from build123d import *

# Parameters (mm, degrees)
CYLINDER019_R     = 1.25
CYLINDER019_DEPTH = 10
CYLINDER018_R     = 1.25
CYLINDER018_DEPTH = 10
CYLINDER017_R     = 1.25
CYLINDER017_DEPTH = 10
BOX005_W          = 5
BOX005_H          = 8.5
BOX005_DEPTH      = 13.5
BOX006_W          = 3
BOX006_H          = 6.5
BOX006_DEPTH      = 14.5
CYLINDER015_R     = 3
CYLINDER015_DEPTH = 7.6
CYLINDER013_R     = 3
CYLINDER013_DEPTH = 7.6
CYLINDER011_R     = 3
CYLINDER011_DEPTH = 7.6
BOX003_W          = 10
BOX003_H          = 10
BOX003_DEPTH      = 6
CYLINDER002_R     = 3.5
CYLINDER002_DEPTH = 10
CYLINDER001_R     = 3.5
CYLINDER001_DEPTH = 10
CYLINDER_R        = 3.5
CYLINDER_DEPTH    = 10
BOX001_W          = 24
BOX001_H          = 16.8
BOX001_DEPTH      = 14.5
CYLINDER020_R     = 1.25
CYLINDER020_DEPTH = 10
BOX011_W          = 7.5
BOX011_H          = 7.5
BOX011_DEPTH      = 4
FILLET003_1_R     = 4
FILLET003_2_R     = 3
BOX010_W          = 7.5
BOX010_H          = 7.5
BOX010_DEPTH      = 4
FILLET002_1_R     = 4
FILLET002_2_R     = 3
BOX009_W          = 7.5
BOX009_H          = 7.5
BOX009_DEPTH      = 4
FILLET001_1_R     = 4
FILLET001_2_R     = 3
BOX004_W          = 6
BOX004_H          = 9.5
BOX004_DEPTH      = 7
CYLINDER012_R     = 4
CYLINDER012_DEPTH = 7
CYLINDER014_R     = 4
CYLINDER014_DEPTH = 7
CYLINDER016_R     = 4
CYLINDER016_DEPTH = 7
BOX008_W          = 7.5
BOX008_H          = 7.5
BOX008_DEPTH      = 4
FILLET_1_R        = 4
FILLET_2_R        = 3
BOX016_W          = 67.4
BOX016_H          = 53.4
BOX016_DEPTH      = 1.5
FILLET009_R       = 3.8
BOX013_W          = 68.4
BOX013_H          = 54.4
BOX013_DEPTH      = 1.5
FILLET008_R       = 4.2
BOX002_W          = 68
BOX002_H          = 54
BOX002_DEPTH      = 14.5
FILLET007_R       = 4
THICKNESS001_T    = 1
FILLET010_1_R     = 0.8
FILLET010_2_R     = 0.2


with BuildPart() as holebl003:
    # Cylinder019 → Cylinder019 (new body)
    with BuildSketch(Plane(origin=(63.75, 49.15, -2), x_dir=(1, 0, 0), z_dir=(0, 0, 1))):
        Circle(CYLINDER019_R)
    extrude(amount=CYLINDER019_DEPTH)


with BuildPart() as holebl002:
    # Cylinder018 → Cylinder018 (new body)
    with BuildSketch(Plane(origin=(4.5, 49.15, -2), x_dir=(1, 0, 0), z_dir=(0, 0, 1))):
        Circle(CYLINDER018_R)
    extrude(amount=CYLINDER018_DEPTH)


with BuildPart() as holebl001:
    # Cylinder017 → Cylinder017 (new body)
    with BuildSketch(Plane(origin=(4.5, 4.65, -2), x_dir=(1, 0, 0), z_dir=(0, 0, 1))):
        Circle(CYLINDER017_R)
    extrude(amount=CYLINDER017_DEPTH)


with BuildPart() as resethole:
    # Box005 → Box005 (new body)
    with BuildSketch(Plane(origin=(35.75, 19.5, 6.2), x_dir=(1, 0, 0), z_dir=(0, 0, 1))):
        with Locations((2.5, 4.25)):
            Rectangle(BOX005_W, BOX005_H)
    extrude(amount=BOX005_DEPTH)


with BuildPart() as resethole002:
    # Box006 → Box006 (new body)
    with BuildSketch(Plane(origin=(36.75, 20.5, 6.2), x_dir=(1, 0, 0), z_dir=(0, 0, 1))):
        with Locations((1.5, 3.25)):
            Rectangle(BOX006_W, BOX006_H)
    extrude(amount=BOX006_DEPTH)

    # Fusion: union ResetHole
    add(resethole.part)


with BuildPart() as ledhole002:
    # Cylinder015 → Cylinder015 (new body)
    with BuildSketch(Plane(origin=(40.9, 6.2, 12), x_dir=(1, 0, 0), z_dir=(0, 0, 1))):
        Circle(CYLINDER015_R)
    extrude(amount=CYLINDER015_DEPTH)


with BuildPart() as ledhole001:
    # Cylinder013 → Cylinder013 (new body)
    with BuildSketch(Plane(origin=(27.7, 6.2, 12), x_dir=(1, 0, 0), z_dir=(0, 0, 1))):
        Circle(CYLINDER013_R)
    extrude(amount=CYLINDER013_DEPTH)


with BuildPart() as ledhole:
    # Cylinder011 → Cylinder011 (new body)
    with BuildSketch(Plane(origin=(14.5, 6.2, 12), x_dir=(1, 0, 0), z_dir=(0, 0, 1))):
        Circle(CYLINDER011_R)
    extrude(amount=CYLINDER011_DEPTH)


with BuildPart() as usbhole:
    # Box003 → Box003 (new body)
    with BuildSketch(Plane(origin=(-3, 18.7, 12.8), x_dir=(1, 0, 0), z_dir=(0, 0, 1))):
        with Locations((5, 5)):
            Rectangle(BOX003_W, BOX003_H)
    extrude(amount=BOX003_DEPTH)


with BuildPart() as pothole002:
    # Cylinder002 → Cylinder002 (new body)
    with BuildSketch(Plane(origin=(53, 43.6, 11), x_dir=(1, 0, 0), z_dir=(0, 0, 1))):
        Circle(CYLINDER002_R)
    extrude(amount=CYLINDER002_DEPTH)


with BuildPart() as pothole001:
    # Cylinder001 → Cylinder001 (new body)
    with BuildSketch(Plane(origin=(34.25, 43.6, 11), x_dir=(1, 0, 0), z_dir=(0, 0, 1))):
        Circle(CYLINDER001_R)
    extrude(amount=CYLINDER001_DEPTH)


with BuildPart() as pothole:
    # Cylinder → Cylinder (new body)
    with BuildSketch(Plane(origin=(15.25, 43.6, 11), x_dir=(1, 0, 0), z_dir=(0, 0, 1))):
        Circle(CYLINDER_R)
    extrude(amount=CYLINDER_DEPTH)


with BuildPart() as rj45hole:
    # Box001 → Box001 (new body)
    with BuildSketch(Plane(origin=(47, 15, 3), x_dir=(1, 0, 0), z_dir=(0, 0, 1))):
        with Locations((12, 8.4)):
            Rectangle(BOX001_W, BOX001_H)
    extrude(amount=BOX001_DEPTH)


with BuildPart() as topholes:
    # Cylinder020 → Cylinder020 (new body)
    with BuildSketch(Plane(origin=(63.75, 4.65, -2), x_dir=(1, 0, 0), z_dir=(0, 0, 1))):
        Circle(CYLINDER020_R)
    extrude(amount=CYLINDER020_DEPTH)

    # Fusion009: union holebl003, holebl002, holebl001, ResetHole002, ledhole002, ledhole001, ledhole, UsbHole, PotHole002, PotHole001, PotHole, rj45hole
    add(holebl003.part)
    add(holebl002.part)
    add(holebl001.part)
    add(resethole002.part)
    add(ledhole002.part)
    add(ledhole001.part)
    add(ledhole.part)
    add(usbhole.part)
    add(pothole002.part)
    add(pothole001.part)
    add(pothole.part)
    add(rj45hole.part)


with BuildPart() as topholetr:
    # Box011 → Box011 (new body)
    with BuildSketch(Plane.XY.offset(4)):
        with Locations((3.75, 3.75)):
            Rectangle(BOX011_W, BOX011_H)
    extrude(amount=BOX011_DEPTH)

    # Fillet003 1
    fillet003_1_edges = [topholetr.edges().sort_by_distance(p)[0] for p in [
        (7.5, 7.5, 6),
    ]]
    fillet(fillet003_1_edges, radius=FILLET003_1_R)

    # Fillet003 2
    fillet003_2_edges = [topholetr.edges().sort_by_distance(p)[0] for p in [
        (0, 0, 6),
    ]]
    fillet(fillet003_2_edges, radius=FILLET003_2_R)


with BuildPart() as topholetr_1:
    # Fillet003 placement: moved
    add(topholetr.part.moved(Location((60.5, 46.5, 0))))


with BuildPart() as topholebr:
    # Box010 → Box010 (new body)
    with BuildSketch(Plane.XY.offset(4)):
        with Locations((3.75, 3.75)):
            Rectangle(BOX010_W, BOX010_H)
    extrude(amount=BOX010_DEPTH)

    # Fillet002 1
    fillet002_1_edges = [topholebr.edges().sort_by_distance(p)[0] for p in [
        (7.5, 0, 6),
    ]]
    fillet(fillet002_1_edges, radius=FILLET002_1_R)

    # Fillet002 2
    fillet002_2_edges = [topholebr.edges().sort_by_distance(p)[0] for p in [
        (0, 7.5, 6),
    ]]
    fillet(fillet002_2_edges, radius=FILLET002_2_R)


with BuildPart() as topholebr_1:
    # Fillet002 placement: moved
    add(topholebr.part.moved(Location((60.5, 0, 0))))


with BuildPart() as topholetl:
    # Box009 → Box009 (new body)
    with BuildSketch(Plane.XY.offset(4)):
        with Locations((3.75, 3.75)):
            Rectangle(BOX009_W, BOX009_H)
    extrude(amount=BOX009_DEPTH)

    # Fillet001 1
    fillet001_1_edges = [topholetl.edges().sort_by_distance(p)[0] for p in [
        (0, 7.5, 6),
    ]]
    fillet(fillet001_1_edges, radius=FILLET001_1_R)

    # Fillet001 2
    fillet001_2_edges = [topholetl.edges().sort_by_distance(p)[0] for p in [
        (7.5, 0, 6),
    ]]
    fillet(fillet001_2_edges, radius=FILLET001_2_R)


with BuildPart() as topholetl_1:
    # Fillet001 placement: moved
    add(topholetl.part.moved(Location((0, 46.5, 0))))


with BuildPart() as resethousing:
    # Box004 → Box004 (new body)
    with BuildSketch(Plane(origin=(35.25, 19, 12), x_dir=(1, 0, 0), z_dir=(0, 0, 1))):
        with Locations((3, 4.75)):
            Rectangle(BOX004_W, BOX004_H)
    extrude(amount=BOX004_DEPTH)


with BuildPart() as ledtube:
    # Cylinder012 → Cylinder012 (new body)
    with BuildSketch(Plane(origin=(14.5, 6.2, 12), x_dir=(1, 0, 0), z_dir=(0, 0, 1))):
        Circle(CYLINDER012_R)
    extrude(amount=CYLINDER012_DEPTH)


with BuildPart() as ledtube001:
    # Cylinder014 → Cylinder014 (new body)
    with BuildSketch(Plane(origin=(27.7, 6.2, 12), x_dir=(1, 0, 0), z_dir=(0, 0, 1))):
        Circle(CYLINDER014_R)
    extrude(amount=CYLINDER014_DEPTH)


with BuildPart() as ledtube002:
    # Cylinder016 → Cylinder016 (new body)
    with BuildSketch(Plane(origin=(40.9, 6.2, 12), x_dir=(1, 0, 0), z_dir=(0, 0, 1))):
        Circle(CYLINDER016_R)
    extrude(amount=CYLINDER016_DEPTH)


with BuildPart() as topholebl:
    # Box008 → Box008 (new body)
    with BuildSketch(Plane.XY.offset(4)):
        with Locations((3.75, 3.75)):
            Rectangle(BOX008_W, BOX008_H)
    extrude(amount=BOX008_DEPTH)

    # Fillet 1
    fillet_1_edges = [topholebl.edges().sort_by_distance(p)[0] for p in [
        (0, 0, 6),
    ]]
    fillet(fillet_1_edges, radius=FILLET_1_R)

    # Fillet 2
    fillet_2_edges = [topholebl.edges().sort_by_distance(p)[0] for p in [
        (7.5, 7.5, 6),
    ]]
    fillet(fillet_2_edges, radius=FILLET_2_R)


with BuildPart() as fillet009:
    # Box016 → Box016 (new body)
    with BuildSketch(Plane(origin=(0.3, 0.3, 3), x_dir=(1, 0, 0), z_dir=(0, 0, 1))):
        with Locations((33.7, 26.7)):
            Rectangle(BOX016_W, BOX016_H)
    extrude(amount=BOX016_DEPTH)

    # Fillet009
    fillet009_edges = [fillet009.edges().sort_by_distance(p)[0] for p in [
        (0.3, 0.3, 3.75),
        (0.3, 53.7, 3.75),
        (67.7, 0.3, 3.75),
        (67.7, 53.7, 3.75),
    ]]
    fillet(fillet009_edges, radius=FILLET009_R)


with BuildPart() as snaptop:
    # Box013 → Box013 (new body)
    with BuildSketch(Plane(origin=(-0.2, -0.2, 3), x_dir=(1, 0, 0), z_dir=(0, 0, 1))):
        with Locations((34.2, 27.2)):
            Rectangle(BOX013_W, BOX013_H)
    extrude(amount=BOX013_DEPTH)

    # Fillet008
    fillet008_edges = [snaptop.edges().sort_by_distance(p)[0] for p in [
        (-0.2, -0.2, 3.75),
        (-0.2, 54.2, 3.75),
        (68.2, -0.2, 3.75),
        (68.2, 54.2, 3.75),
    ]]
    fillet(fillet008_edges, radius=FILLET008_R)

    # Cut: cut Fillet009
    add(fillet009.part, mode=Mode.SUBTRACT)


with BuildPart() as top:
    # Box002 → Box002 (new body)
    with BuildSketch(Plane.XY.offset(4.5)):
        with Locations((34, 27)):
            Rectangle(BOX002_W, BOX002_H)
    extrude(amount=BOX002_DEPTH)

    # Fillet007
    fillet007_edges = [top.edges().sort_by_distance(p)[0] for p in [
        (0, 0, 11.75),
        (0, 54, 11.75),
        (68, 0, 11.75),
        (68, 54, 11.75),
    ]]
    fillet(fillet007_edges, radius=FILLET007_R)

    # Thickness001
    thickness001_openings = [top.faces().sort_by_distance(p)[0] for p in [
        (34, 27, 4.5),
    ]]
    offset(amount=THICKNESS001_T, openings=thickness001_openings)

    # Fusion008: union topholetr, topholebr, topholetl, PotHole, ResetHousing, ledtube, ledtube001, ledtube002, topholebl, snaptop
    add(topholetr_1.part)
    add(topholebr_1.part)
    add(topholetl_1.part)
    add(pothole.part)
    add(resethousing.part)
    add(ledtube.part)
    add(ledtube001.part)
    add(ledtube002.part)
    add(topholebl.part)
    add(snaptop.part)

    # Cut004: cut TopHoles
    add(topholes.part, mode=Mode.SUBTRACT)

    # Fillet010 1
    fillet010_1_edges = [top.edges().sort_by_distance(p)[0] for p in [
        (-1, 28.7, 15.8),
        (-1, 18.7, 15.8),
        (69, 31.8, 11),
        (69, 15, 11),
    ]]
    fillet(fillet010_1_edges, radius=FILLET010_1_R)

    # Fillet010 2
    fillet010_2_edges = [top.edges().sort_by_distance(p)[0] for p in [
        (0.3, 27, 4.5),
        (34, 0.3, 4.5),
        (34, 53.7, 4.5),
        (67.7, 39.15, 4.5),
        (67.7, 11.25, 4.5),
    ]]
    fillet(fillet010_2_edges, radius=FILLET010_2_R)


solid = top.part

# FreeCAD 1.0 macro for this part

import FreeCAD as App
import Part
import Sketcher
Q = App.Units.Quantity


def edges_at(feature, points):
    """Names of the edges that pass closest to the given points."""
    edges = feature.Shape.Edges
    near = lambda p: min(range(len(edges)), key=lambda i: edges[i].distToShape(Part.Vertex(*p))[0])
    return sorted({f"Edge{near(p) + 1}" for p in points})


def faces_at(feature, points):
    """Names of the faces that lie closest to the given points."""
    faces = feature.Shape.Faces
    near = lambda p: min(range(len(faces)), key=lambda i: faces[i].distToShape(Part.Vertex(*p))[0])
    return sorted({f"Face{near(p) + 1}" for p in points})


def add_polygon(sketch, points):
    """Adds a closed chain of lines whose ends are joined by coincident constraints."""
    first, n = sketch.GeometryCount, len(points)
    for a, b in zip(points, points[1:] + points[:1]):
        sketch.addGeometry(Part.LineSegment(App.Vector(*a, 0), App.Vector(*b, 0)), False)
    for i in range(n):
        sketch.addConstraint(Sketcher.Constraint("Coincident", first + i, 2, first + (i + 1) % n, 1))

doc = App.newDocument("Part")
body = doc.addObject("PartDesign::Body", "Body")

sketch1 = body.newObject("Sketcher::SketchObject", "Sketch")
sketch1.AttachmentSupport = (doc.getObject("XY_Plane"), [""])
sketch1.MapMode = "FlatFace"
sketch1.AttachmentOffset = App.Placement(App.Vector(0, 0, -2), App.Rotation())
sketch1.addGeometry(Part.Circle(App.Vector(63.8, 49.1, 0), App.Vector(0, 0, 1), 1.2), False)
sketch1.addConstraint([
    Sketcher.Constraint("Diameter", 0, Q("2.5 mm")),
    Sketcher.Constraint("DistanceX", -1, 1, 0, 3, Q("63.75 mm")),
    Sketcher.Constraint("DistanceY", -1, 1, 0, 3, Q("49.15 mm")),
])
pad1 = body.newObject("PartDesign::Pad", "Pad")
pad1.Profile = sketch1
pad1.Length = 10
body2 = doc.addObject("PartDesign::Body", "Body001")

sketch2 = body2.newObject("Sketcher::SketchObject", "Sketch001")
sketch2.AttachmentSupport = (doc.getObject("XY_Plane001"), [""])
sketch2.MapMode = "FlatFace"
sketch2.AttachmentOffset = App.Placement(App.Vector(0, 0, -2), App.Rotation())
sketch2.addGeometry(Part.Circle(App.Vector(4.5, 49.1, 0), App.Vector(0, 0, 1), 1.2), False)
sketch2.addConstraint([
    Sketcher.Constraint("Diameter", 0, Q("2.5 mm")),
    Sketcher.Constraint("DistanceX", -1, 1, 0, 3, Q("4.5 mm")),
    Sketcher.Constraint("DistanceY", -1, 1, 0, 3, Q("49.15 mm")),
])
pad2 = body2.newObject("PartDesign::Pad", "Pad001")
pad2.Profile = sketch2
pad2.Length = 10
body3 = doc.addObject("PartDesign::Body", "Body002")

sketch3 = body3.newObject("Sketcher::SketchObject", "Sketch002")
sketch3.AttachmentSupport = (doc.getObject("XY_Plane002"), [""])
sketch3.MapMode = "FlatFace"
sketch3.AttachmentOffset = App.Placement(App.Vector(0, 0, -2), App.Rotation())
sketch3.addGeometry(Part.Circle(App.Vector(4.5, 4.7, 0), App.Vector(0, 0, 1), 1.2), False)
sketch3.addConstraint([
    Sketcher.Constraint("Diameter", 0, Q("2.5 mm")),
    Sketcher.Constraint("DistanceX", -1, 1, 0, 3, Q("4.5 mm")),
    Sketcher.Constraint("DistanceY", -1, 1, 0, 3, Q("4.65 mm")),
])
pad3 = body3.newObject("PartDesign::Pad", "Pad002")
pad3.Profile = sketch3
pad3.Length = 10
body4 = doc.addObject("PartDesign::Body", "Body003")

sketch4 = body4.newObject("Sketcher::SketchObject", "Sketch003")
sketch4.AttachmentSupport = (doc.getObject("XY_Plane003"), [""])
sketch4.MapMode = "FlatFace"
sketch4.AttachmentOffset = App.Placement(App.Vector(0, 0, 6.2), App.Rotation())
add_polygon(sketch4, [(36, 28), (36, 20), (41, 20), (41, 28)])
sketch4.addConstraint([
    Sketcher.Constraint("Vertical", 0),
    Sketcher.Constraint("Horizontal", 1),
    Sketcher.Constraint("Vertical", 2),
    Sketcher.Constraint("Horizontal", 3),
    Sketcher.Constraint("DistanceX", 1, 1, 1, 2, Q("5 mm")),
    Sketcher.Constraint("DistanceY", 0, 2, 0, 1, Q("8.5 mm")),
    Sketcher.Constraint("DistanceY", -1, 1, 2, 2, Q("28 mm")),
    Sketcher.Constraint("DistanceX", -1, 1, 0, 2, Q("35.75 mm")),
])
pad4 = body4.newObject("PartDesign::Pad", "Pad003")
pad4.Profile = sketch4
pad4.Length = 13.5
body5 = doc.addObject("PartDesign::Body", "Body004")

sketch5 = body5.newObject("Sketcher::SketchObject", "Sketch004")
sketch5.AttachmentSupport = (doc.getObject("XY_Plane004"), [""])
sketch5.MapMode = "FlatFace"
sketch5.AttachmentOffset = App.Placement(App.Vector(0, 0, 6.2), App.Rotation())
add_polygon(sketch5, [(36.8, 27), (36.8, 20.5), (39.8, 20.5), (39.8, 27)])
sketch5.addConstraint([
    Sketcher.Constraint("Vertical", 0),
    Sketcher.Constraint("Horizontal", 1),
    Sketcher.Constraint("Vertical", 2),
    Sketcher.Constraint("Horizontal", 3),
    Sketcher.Constraint("DistanceX", 1, 1, 1, 2, Q("3 mm")),
    Sketcher.Constraint("DistanceY", 0, 2, 0, 1, Q("6.5 mm")),
    Sketcher.Constraint("DistanceY", -1, 1, 2, 2, Q("27 mm")),
    Sketcher.Constraint("DistanceX", -1, 1, 0, 2, Q("36.75 mm")),
])
pad5 = body5.newObject("PartDesign::Pad", "Pad004")
pad5.Profile = sketch5
pad5.Length = 14.5
doc.recompute()

boolean = body5.newObject("PartDesign::Boolean", "Boolean")
boolean.Type = "Fuse"
boolean.addObjects([body4])
body6 = doc.addObject("PartDesign::Body", "Body005")

sketch6 = body6.newObject("Sketcher::SketchObject", "Sketch005")
sketch6.AttachmentSupport = (doc.getObject("XY_Plane005"), [""])
sketch6.MapMode = "FlatFace"
sketch6.AttachmentOffset = App.Placement(App.Vector(0, 0, 12), App.Rotation())
sketch6.addGeometry(Part.Circle(App.Vector(40.9, 6.2, 0), App.Vector(0, 0, 1), 3), False)
sketch6.addConstraint([
    Sketcher.Constraint("Diameter", 0, Q("6 mm")),
    Sketcher.Constraint("DistanceX", -1, 1, 0, 3, Q("40.9 mm")),
    Sketcher.Constraint("DistanceY", -1, 1, 0, 3, Q("6.2 mm")),
])
pad6 = body6.newObject("PartDesign::Pad", "Pad005")
pad6.Profile = sketch6
pad6.Length = 7.6
body7 = doc.addObject("PartDesign::Body", "Body006")

sketch7 = body7.newObject("Sketcher::SketchObject", "Sketch006")
sketch7.AttachmentSupport = (doc.getObject("XY_Plane006"), [""])
sketch7.MapMode = "FlatFace"
sketch7.AttachmentOffset = App.Placement(App.Vector(0, 0, 12), App.Rotation())
sketch7.addGeometry(Part.Circle(App.Vector(27.7, 6.2, 0), App.Vector(0, 0, 1), 3), False)
sketch7.addConstraint([
    Sketcher.Constraint("Diameter", 0, Q("6 mm")),
    Sketcher.Constraint("DistanceX", -1, 1, 0, 3, Q("27.7 mm")),
    Sketcher.Constraint("DistanceY", -1, 1, 0, 3, Q("6.2 mm")),
])
pad7 = body7.newObject("PartDesign::Pad", "Pad006")
pad7.Profile = sketch7
pad7.Length = 7.6
body8 = doc.addObject("PartDesign::Body", "Body007")

sketch8 = body8.newObject("Sketcher::SketchObject", "Sketch007")
sketch8.AttachmentSupport = (doc.getObject("XY_Plane007"), [""])
sketch8.MapMode = "FlatFace"
sketch8.AttachmentOffset = App.Placement(App.Vector(0, 0, 12), App.Rotation())
sketch8.addGeometry(Part.Circle(App.Vector(14.5, 6.2, 0), App.Vector(0, 0, 1), 3), False)
sketch8.addConstraint([
    Sketcher.Constraint("Diameter", 0, Q("6 mm")),
    Sketcher.Constraint("DistanceX", -1, 1, 0, 3, Q("14.5 mm")),
    Sketcher.Constraint("DistanceY", -1, 1, 0, 3, Q("6.2 mm")),
])
pad8 = body8.newObject("PartDesign::Pad", "Pad007")
pad8.Profile = sketch8
pad8.Length = 7.6
body9 = doc.addObject("PartDesign::Body", "Body008")

sketch9 = body9.newObject("Sketcher::SketchObject", "Sketch008")
sketch9.AttachmentSupport = (doc.getObject("XY_Plane008"), [""])
sketch9.MapMode = "FlatFace"
sketch9.AttachmentOffset = App.Placement(App.Vector(0, 0, 12.8), App.Rotation())
add_polygon(sketch9, [(-3, 29), (-3, 19), (7, 19), (7, 29)])
sketch9.addConstraint([
    Sketcher.Constraint("Vertical", 0),
    Sketcher.Constraint("Horizontal", 1),
    Sketcher.Constraint("Vertical", 2),
    Sketcher.Constraint("Horizontal", 3),
    Sketcher.Constraint("Equal", 3, 0),
    Sketcher.Constraint("DistanceX", 1, 1, 1, 2, Q("10 mm")),
    Sketcher.Constraint("DistanceX", 0, 2, -1, 1, Q("3 mm")),
    Sketcher.Constraint("DistanceY", -1, 1, 0, 2, Q("18.7 mm")),
])
pad9 = body9.newObject("PartDesign::Pad", "Pad008")
pad9.Profile = sketch9
pad9.Length = 6
body10 = doc.addObject("PartDesign::Body", "Body009")

sketch10 = body10.newObject("Sketcher::SketchObject", "Sketch009")
sketch10.AttachmentSupport = (doc.getObject("XY_Plane009"), [""])
sketch10.MapMode = "FlatFace"
sketch10.AttachmentOffset = App.Placement(App.Vector(0, 0, 11), App.Rotation())
sketch10.addGeometry(Part.Circle(App.Vector(53, 43.6, 0), App.Vector(0, 0, 1), 3.5), False)
sketch10.addConstraint([
    Sketcher.Constraint("Diameter", 0, Q("7 mm")),
    Sketcher.Constraint("DistanceX", -1, 1, 0, 3, Q("53 mm")),
    Sketcher.Constraint("DistanceY", -1, 1, 0, 3, Q("43.6 mm")),
])
pad10 = body10.newObject("PartDesign::Pad", "Pad009")
pad10.Profile = sketch10
pad10.Length = 10
body11 = doc.addObject("PartDesign::Body", "Body010")

sketch11 = body11.newObject("Sketcher::SketchObject", "Sketch010")
sketch11.AttachmentSupport = (doc.getObject("XY_Plane010"), [""])
sketch11.MapMode = "FlatFace"
sketch11.AttachmentOffset = App.Placement(App.Vector(0, 0, 11), App.Rotation())
sketch11.addGeometry(Part.Circle(App.Vector(34.2, 43.6, 0), App.Vector(0, 0, 1), 3.5), False)
sketch11.addConstraint([
    Sketcher.Constraint("Diameter", 0, Q("7 mm")),
    Sketcher.Constraint("DistanceY", -1, 1, 0, 3, Q("43.6 mm")),
    Sketcher.Constraint("DistanceX", -1, 1, 0, 3, Q("34.25 mm")),
])
pad11 = body11.newObject("PartDesign::Pad", "Pad010")
pad11.Profile = sketch11
pad11.Length = 10
body12 = doc.addObject("PartDesign::Body", "Body011")

sketch12 = body12.newObject("Sketcher::SketchObject", "Sketch011")
sketch12.AttachmentSupport = (doc.getObject("XY_Plane011"), [""])
sketch12.MapMode = "FlatFace"
sketch12.AttachmentOffset = App.Placement(App.Vector(0, 0, 11), App.Rotation())
sketch12.addGeometry(Part.Circle(App.Vector(15.2, 43.6, 0), App.Vector(0, 0, 1), 3.5), False)
sketch12.addConstraint([
    Sketcher.Constraint("Diameter", 0, Q("7 mm")),
    Sketcher.Constraint("DistanceY", -1, 1, 0, 3, Q("43.6 mm")),
    Sketcher.Constraint("DistanceX", -1, 1, 0, 3, Q("15.25 mm")),
])
pad12 = body12.newObject("PartDesign::Pad", "Pad011")
pad12.Profile = sketch12
pad12.Length = 10
body13 = doc.addObject("PartDesign::Body", "Body012")

sketch13 = body13.newObject("Sketcher::SketchObject", "Sketch012")
sketch13.AttachmentSupport = (doc.getObject("XY_Plane012"), [""])
sketch13.MapMode = "FlatFace"
sketch13.AttachmentOffset = App.Placement(App.Vector(0, 0, 3), App.Rotation())
add_polygon(sketch13, [(47, 32), (47, 15), (71, 15), (71, 32)])
sketch13.addConstraint([
    Sketcher.Constraint("Vertical", 0),
    Sketcher.Constraint("Horizontal", 1),
    Sketcher.Constraint("Vertical", 2),
    Sketcher.Constraint("Horizontal", 3),
    Sketcher.Constraint("DistanceX", 1, 1, 1, 2, Q("24 mm")),
    Sketcher.Constraint("DistanceY", 0, 2, 0, 1, Q("16.8 mm")),
    Sketcher.Constraint("DistanceX", -1, 1, 0, 2, Q("47 mm")),
    Sketcher.Constraint("DistanceY", -1, 1, 0, 2, Q("15 mm")),
])
pad13 = body13.newObject("PartDesign::Pad", "Pad012")
pad13.Profile = sketch13
pad13.Length = 14.5
body14 = doc.addObject("PartDesign::Body", "Body013")
body14.AllowCompound = True

sketch14 = body14.newObject("Sketcher::SketchObject", "Sketch013")
sketch14.AttachmentSupport = (doc.getObject("XY_Plane013"), [""])
sketch14.MapMode = "FlatFace"
sketch14.AttachmentOffset = App.Placement(App.Vector(0, 0, -2), App.Rotation())
sketch14.addGeometry(Part.Circle(App.Vector(63.8, 4.7, 0), App.Vector(0, 0, 1), 1.2), False)
sketch14.addConstraint([
    Sketcher.Constraint("Diameter", 0, Q("2.5 mm")),
    Sketcher.Constraint("DistanceX", -1, 1, 0, 3, Q("63.75 mm")),
    Sketcher.Constraint("DistanceY", -1, 1, 0, 3, Q("4.65 mm")),
])
pad14 = body14.newObject("PartDesign::Pad", "Pad013")
pad14.Profile = sketch14
pad14.Length = 10
doc.recompute()

boolean2 = body14.newObject("PartDesign::Boolean", "Boolean001")
boolean2.Type = "Fuse"
boolean2.addObjects([body])
doc.recompute()

boolean3 = body14.newObject("PartDesign::Boolean", "Boolean002")
boolean3.Type = "Fuse"
boolean3.addObjects([body2])
doc.recompute()

boolean4 = body14.newObject("PartDesign::Boolean", "Boolean003")
boolean4.Type = "Fuse"
boolean4.addObjects([body3])
doc.recompute()

boolean5 = body14.newObject("PartDesign::Boolean", "Boolean004")
boolean5.Type = "Fuse"
boolean5.addObjects([body5])
doc.recompute()

boolean6 = body14.newObject("PartDesign::Boolean", "Boolean005")
boolean6.Type = "Fuse"
boolean6.addObjects([body6])
doc.recompute()

boolean7 = body14.newObject("PartDesign::Boolean", "Boolean006")
boolean7.Type = "Fuse"
boolean7.addObjects([body7])
doc.recompute()

boolean8 = body14.newObject("PartDesign::Boolean", "Boolean007")
boolean8.Type = "Fuse"
boolean8.addObjects([body8])
doc.recompute()

boolean9 = body14.newObject("PartDesign::Boolean", "Boolean008")
boolean9.Type = "Fuse"
boolean9.addObjects([body9])
doc.recompute()

boolean10 = body14.newObject("PartDesign::Boolean", "Boolean009")
boolean10.Type = "Fuse"
boolean10.addObjects([body10])
doc.recompute()

boolean11 = body14.newObject("PartDesign::Boolean", "Boolean010")
boolean11.Type = "Fuse"
boolean11.addObjects([body11])
doc.recompute()

body15 = doc.addObject("PartDesign::Body", "Body014")
body15.BaseFeature = body12
boolean12 = body14.newObject("PartDesign::Boolean", "Boolean011")
boolean12.Type = "Fuse"
boolean12.addObjects([body15])
doc.recompute()

boolean13 = body14.newObject("PartDesign::Boolean", "Boolean012")
boolean13.Type = "Fuse"
boolean13.addObjects([body13])
body16 = doc.addObject("PartDesign::Body", "Body015")

sketch15 = body16.newObject("Sketcher::SketchObject", "Sketch014")
sketch15.AttachmentSupport = (doc.getObject("XY_Plane015"), [""])
sketch15.MapMode = "FlatFace"
sketch15.AttachmentOffset = App.Placement(App.Vector(0, 0, 4), App.Rotation())
add_polygon(sketch15, [(0, 8), (0, 0), (8, 0), (8, 8)])
sketch15.addConstraint([
    Sketcher.Constraint("Vertical", 0),
    Sketcher.Constraint("Horizontal", 1),
    Sketcher.Constraint("Vertical", 2),
    Sketcher.Constraint("Horizontal", 3),
    Sketcher.Constraint("Coincident", 0, 2, -1, 1),
    Sketcher.Constraint("Equal", 3, 0),
    Sketcher.Constraint("DistanceX", 1, 1, 1, 2, Q("7.5 mm")),
])
pad15 = body16.newObject("PartDesign::Pad", "Pad014")
pad15.Profile = sketch15
pad15.Length = 4
doc.recompute()

fillet = body16.newObject("PartDesign::Fillet", "Fillet")
fillet.Base = (pad15, edges_at(pad15, [(7.5, 7.5, 6)]))
fillet.Radius = 4
doc.recompute()

fillet2 = body16.newObject("PartDesign::Fillet", "Fillet001")
fillet2.Base = (fillet, edges_at(fillet, [(0, 0, 6)]))
fillet2.Radius = 3
body17 = doc.addObject("PartDesign::Body", "Body016")
doc.recompute()

body16.Placement = App.Placement(App.Vector(60.5, 46.5, 0), App.Rotation(App.Vector(0, 0, 1), 0))
boolean14 = body17.newObject("PartDesign::Boolean", "Boolean013")
boolean14.Type = "Fuse"
boolean14.addObjects([body16])
body18 = doc.addObject("PartDesign::Body", "Body017")

sketch16 = body18.newObject("Sketcher::SketchObject", "Sketch015")
sketch16.AttachmentSupport = (doc.getObject("XY_Plane017"), [""])
sketch16.MapMode = "FlatFace"
sketch16.AttachmentOffset = App.Placement(App.Vector(0, 0, 4), App.Rotation())
add_polygon(sketch16, [(0, 8), (0, 0), (8, 0), (8, 8)])
sketch16.addConstraint([
    Sketcher.Constraint("Vertical", 0),
    Sketcher.Constraint("Horizontal", 1),
    Sketcher.Constraint("Vertical", 2),
    Sketcher.Constraint("Horizontal", 3),
    Sketcher.Constraint("Coincident", 0, 2, -1, 1),
    Sketcher.Constraint("Equal", 3, 0),
    Sketcher.Constraint("DistanceX", 1, 1, 1, 2, Q("7.5 mm")),
])
pad16 = body18.newObject("PartDesign::Pad", "Pad015")
pad16.Profile = sketch16
pad16.Length = 4
doc.recompute()

fillet3 = body18.newObject("PartDesign::Fillet", "Fillet002")
fillet3.Base = (pad16, edges_at(pad16, [(7.5, 0, 6)]))
fillet3.Radius = 4
doc.recompute()

fillet4 = body18.newObject("PartDesign::Fillet", "Fillet003")
fillet4.Base = (fillet3, edges_at(fillet3, [(0, 7.5, 6)]))
fillet4.Radius = 3
body19 = doc.addObject("PartDesign::Body", "Body018")
doc.recompute()

body18.Placement = App.Placement(App.Vector(60.5, 0, 0), App.Rotation(App.Vector(0, 0, 1), 0))
boolean15 = body19.newObject("PartDesign::Boolean", "Boolean014")
boolean15.Type = "Fuse"
boolean15.addObjects([body18])
body20 = doc.addObject("PartDesign::Body", "Body019")

sketch17 = body20.newObject("Sketcher::SketchObject", "Sketch016")
sketch17.AttachmentSupport = (doc.getObject("XY_Plane019"), [""])
sketch17.MapMode = "FlatFace"
sketch17.AttachmentOffset = App.Placement(App.Vector(0, 0, 4), App.Rotation())
add_polygon(sketch17, [(0, 8), (0, 0), (8, 0), (8, 8)])
sketch17.addConstraint([
    Sketcher.Constraint("Vertical", 0),
    Sketcher.Constraint("Horizontal", 1),
    Sketcher.Constraint("Vertical", 2),
    Sketcher.Constraint("Horizontal", 3),
    Sketcher.Constraint("Coincident", 0, 2, -1, 1),
    Sketcher.Constraint("Equal", 3, 0),
    Sketcher.Constraint("DistanceX", 1, 1, 1, 2, Q("7.5 mm")),
])
pad17 = body20.newObject("PartDesign::Pad", "Pad016")
pad17.Profile = sketch17
pad17.Length = 4
doc.recompute()

fillet5 = body20.newObject("PartDesign::Fillet", "Fillet004")
fillet5.Base = (pad17, edges_at(pad17, [(0, 7.5, 6)]))
fillet5.Radius = 4
doc.recompute()

fillet6 = body20.newObject("PartDesign::Fillet", "Fillet005")
fillet6.Base = (fillet5, edges_at(fillet5, [(7.5, 0, 6)]))
fillet6.Radius = 3
body21 = doc.addObject("PartDesign::Body", "Body020")
doc.recompute()

body20.Placement = App.Placement(App.Vector(0, 46.5, 0), App.Rotation(App.Vector(0, 0, 1), 0))
boolean16 = body21.newObject("PartDesign::Boolean", "Boolean015")
boolean16.Type = "Fuse"
boolean16.addObjects([body20])
body22 = doc.addObject("PartDesign::Body", "Body021")

sketch18 = body22.newObject("Sketcher::SketchObject", "Sketch017")
sketch18.AttachmentSupport = (doc.getObject("XY_Plane021"), [""])
sketch18.MapMode = "FlatFace"
sketch18.AttachmentOffset = App.Placement(App.Vector(0, 0, 12), App.Rotation())
add_polygon(sketch18, [(35, 28), (35, 19), (41, 19), (41, 28)])
sketch18.addConstraint([
    Sketcher.Constraint("Vertical", 0),
    Sketcher.Constraint("Horizontal", 1),
    Sketcher.Constraint("Vertical", 2),
    Sketcher.Constraint("Horizontal", 3),
    Sketcher.Constraint("DistanceX", 1, 1, 1, 2, Q("6 mm")),
    Sketcher.Constraint("DistanceY", 0, 2, 0, 1, Q("9.5 mm")),
    Sketcher.Constraint("DistanceY", -1, 1, 0, 2, Q("19 mm")),
    Sketcher.Constraint("DistanceX", -1, 1, 0, 2, Q("35.25 mm")),
])
pad18 = body22.newObject("PartDesign::Pad", "Pad017")
pad18.Profile = sketch18
pad18.Length = 7
body23 = doc.addObject("PartDesign::Body", "Body022")

sketch19 = body23.newObject("Sketcher::SketchObject", "Sketch018")
sketch19.AttachmentSupport = (doc.getObject("XY_Plane022"), [""])
sketch19.MapMode = "FlatFace"
sketch19.AttachmentOffset = App.Placement(App.Vector(0, 0, 12), App.Rotation())
sketch19.addGeometry(Part.Circle(App.Vector(14.5, 6.2, 0), App.Vector(0, 0, 1), 4), False)
sketch19.addConstraint([
    Sketcher.Constraint("Diameter", 0, Q("8 mm")),
    Sketcher.Constraint("DistanceX", -1, 1, 0, 3, Q("14.5 mm")),
    Sketcher.Constraint("DistanceY", -1, 1, 0, 3, Q("6.2 mm")),
])
pad19 = body23.newObject("PartDesign::Pad", "Pad018")
pad19.Profile = sketch19
pad19.Length = 7
body24 = doc.addObject("PartDesign::Body", "Body023")

sketch20 = body24.newObject("Sketcher::SketchObject", "Sketch019")
sketch20.AttachmentSupport = (doc.getObject("XY_Plane023"), [""])
sketch20.MapMode = "FlatFace"
sketch20.AttachmentOffset = App.Placement(App.Vector(0, 0, 12), App.Rotation())
sketch20.addGeometry(Part.Circle(App.Vector(27.7, 6.2, 0), App.Vector(0, 0, 1), 4), False)
sketch20.addConstraint([
    Sketcher.Constraint("Diameter", 0, Q("8 mm")),
    Sketcher.Constraint("DistanceX", -1, 1, 0, 3, Q("27.7 mm")),
    Sketcher.Constraint("DistanceY", -1, 1, 0, 3, Q("6.2 mm")),
])
pad20 = body24.newObject("PartDesign::Pad", "Pad019")
pad20.Profile = sketch20
pad20.Length = 7
body25 = doc.addObject("PartDesign::Body", "Body024")

sketch21 = body25.newObject("Sketcher::SketchObject", "Sketch020")
sketch21.AttachmentSupport = (doc.getObject("XY_Plane024"), [""])
sketch21.MapMode = "FlatFace"
sketch21.AttachmentOffset = App.Placement(App.Vector(0, 0, 12), App.Rotation())
sketch21.addGeometry(Part.Circle(App.Vector(40.9, 6.2, 0), App.Vector(0, 0, 1), 4), False)
sketch21.addConstraint([
    Sketcher.Constraint("Diameter", 0, Q("8 mm")),
    Sketcher.Constraint("DistanceX", -1, 1, 0, 3, Q("40.9 mm")),
    Sketcher.Constraint("DistanceY", -1, 1, 0, 3, Q("6.2 mm")),
])
pad21 = body25.newObject("PartDesign::Pad", "Pad020")
pad21.Profile = sketch21
pad21.Length = 7
body26 = doc.addObject("PartDesign::Body", "Body025")

sketch22 = body26.newObject("Sketcher::SketchObject", "Sketch021")
sketch22.AttachmentSupport = (doc.getObject("XY_Plane025"), [""])
sketch22.MapMode = "FlatFace"
sketch22.AttachmentOffset = App.Placement(App.Vector(0, 0, 4), App.Rotation())
add_polygon(sketch22, [(0, 8), (0, 0), (8, 0), (8, 8)])
sketch22.addConstraint([
    Sketcher.Constraint("Vertical", 0),
    Sketcher.Constraint("Horizontal", 1),
    Sketcher.Constraint("Vertical", 2),
    Sketcher.Constraint("Horizontal", 3),
    Sketcher.Constraint("Coincident", 0, 2, -1, 1),
    Sketcher.Constraint("Equal", 3, 0),
    Sketcher.Constraint("DistanceX", 1, 1, 1, 2, Q("7.5 mm")),
])
pad22 = body26.newObject("PartDesign::Pad", "Pad021")
pad22.Profile = sketch22
pad22.Length = 4
doc.recompute()

fillet7 = body26.newObject("PartDesign::Fillet", "Fillet006")
fillet7.Base = (pad22, edges_at(pad22, [(0, 0, 6)]))
fillet7.Radius = 4
doc.recompute()

fillet8 = body26.newObject("PartDesign::Fillet", "Fillet007")
fillet8.Base = (fillet7, edges_at(fillet7, [(7.5, 7.5, 6)]))
fillet8.Radius = 3
body27 = doc.addObject("PartDesign::Body", "Body026")

sketch23 = body27.newObject("Sketcher::SketchObject", "Sketch022")
sketch23.AttachmentSupport = (doc.getObject("XY_Plane026"), [""])
sketch23.MapMode = "FlatFace"
sketch23.AttachmentOffset = App.Placement(App.Vector(0, 0, 3), App.Rotation())
add_polygon(sketch23, [(0, 54), (0, 0), (68, 0), (68, 54)])
sketch23.addConstraint([
    Sketcher.Constraint("Vertical", 0),
    Sketcher.Constraint("Horizontal", 1),
    Sketcher.Constraint("Vertical", 2),
    Sketcher.Constraint("Horizontal", 3),
    Sketcher.Constraint("DistanceX", 1, 1, 1, 2, Q("67.4 mm")),
    Sketcher.Constraint("DistanceY", 0, 2, 0, 1, Q("53.4 mm")),
    Sketcher.Constraint("DistanceX", -1, 1, 0, 2, Q("0.3 mm")),
    Sketcher.Constraint("DistanceY", -1, 1, 0, 2, Q("0.3 mm")),
])
pad23 = body27.newObject("PartDesign::Pad", "Pad022")
pad23.Profile = sketch23
pad23.Length = 1.5
doc.recompute()

fillet9 = body27.newObject("PartDesign::Fillet", "Fillet008")
fillet9.Base = (pad23, edges_at(pad23, [
    (0.3, 0.3, 3.75),
    (0.3, 53.7, 3.75),
    (67.7, 0.3, 3.75),
    (67.7, 53.7, 3.75),
]))
fillet9.Radius = 3.8
body28 = doc.addObject("PartDesign::Body", "Body027")

sketch24 = body28.newObject("Sketcher::SketchObject", "Sketch023")
sketch24.AttachmentSupport = (doc.getObject("XY_Plane027"), [""])
sketch24.MapMode = "FlatFace"
sketch24.AttachmentOffset = App.Placement(App.Vector(0, 0, 3), App.Rotation())
add_polygon(sketch24, [(0, 54), (0, 0), (68, 0), (68, 54)])
sketch24.addConstraint([
    Sketcher.Constraint("Vertical", 0),
    Sketcher.Constraint("Horizontal", 1),
    Sketcher.Constraint("Vertical", 2),
    Sketcher.Constraint("Horizontal", 3),
    Sketcher.Constraint("DistanceX", 1, 1, 1, 2, Q("68.4 mm")),
    Sketcher.Constraint("DistanceY", 0, 2, 0, 1, Q("54.4 mm")),
    Sketcher.Constraint("DistanceX", 0, 2, -1, 1, Q("0.2 mm")),
    Sketcher.Constraint("DistanceY", 0, 2, -1, 1, Q("0.2 mm")),
])
pad24 = body28.newObject("PartDesign::Pad", "Pad023")
pad24.Profile = sketch24
pad24.Length = 1.5
doc.recompute()

fillet10 = body28.newObject("PartDesign::Fillet", "Fillet009")
fillet10.Base = (pad24, edges_at(pad24, [
    (-0.2, -0.2, 3.75),
    (-0.2, 54.2, 3.75),
    (68.2, -0.2, 3.75),
    (68.2, 54.2, 3.75),
]))
fillet10.Radius = 4.2
doc.recompute()

boolean17 = body28.newObject("PartDesign::Boolean", "Boolean016")
boolean17.Type = "Cut"
boolean17.addObjects([body27])
body29 = doc.addObject("PartDesign::Body", "Body028")

sketch25 = body29.newObject("Sketcher::SketchObject", "Sketch024")
sketch25.AttachmentSupport = (doc.getObject("XY_Plane028"), [""])
sketch25.MapMode = "FlatFace"
sketch25.AttachmentOffset = App.Placement(App.Vector(0, 0, 4.5), App.Rotation())
add_polygon(sketch25, [(0, 54), (0, 0), (68, 0), (68, 54)])
sketch25.addConstraint([
    Sketcher.Constraint("Vertical", 0),
    Sketcher.Constraint("Horizontal", 1),
    Sketcher.Constraint("Vertical", 2),
    Sketcher.Constraint("Horizontal", 3),
    Sketcher.Constraint("Coincident", 0, 2, -1, 1),
    Sketcher.Constraint("DistanceX", 1, 1, 1, 2, Q("68 mm")),
    Sketcher.Constraint("DistanceY", 0, 2, 0, 1, Q("54 mm")),
])
pad25 = body29.newObject("PartDesign::Pad", "Pad024")
pad25.Profile = sketch25
pad25.Length = 14.5
doc.recompute()

fillet11 = body29.newObject("PartDesign::Fillet", "Fillet010")
fillet11.Base = (pad25, edges_at(pad25, [
    (0, 0, 11.75),
    (0, 54, 11.75),
    (68, 0, 11.75),
    (68, 54, 11.75),
]))
fillet11.Radius = 4
doc.recompute()

thickness = body29.newObject("PartDesign::Thickness", "Thickness")
thickness.Base = (fillet11, faces_at(fillet11, [(34, 27, 4.5)]))
thickness.Value = 1
thickness.Reversed = False
thickness.Join = "Arc"
doc.recompute()

boolean18 = body29.newObject("PartDesign::Boolean", "Boolean017")
boolean18.Type = "Fuse"
boolean18.addObjects([body17])
doc.recompute()

boolean19 = body29.newObject("PartDesign::Boolean", "Boolean018")
boolean19.Type = "Fuse"
boolean19.addObjects([body19])
doc.recompute()

boolean20 = body29.newObject("PartDesign::Boolean", "Boolean019")
boolean20.Type = "Fuse"
boolean20.addObjects([body21])
doc.recompute()

boolean21 = body29.newObject("PartDesign::Boolean", "Boolean020")
boolean21.Type = "Fuse"
boolean21.addObjects([body12])
doc.recompute()

boolean22 = body29.newObject("PartDesign::Boolean", "Boolean021")
boolean22.Type = "Fuse"
boolean22.addObjects([body22])
doc.recompute()

boolean23 = body29.newObject("PartDesign::Boolean", "Boolean022")
boolean23.Type = "Fuse"
boolean23.addObjects([body23])
doc.recompute()

boolean24 = body29.newObject("PartDesign::Boolean", "Boolean023")
boolean24.Type = "Fuse"
boolean24.addObjects([body24])
doc.recompute()

boolean25 = body29.newObject("PartDesign::Boolean", "Boolean024")
boolean25.Type = "Fuse"
boolean25.addObjects([body25])
doc.recompute()

boolean26 = body29.newObject("PartDesign::Boolean", "Boolean025")
boolean26.Type = "Fuse"
boolean26.addObjects([body26])
doc.recompute()

boolean27 = body29.newObject("PartDesign::Boolean", "Boolean026")
boolean27.Type = "Fuse"
boolean27.addObjects([body28])
doc.recompute()

boolean28 = body29.newObject("PartDesign::Boolean", "Boolean027")
boolean28.Type = "Cut"
boolean28.addObjects([body14])
doc.recompute()

fillet12 = body29.newObject("PartDesign::Fillet", "Fillet011")
fillet12.Base = (boolean28, edges_at(boolean28, [
    (-1, 28.7, 15.8),
    (-1, 18.7, 15.8),
    (69, 31.8, 11),
    (69, 15, 11),
]))
fillet12.Radius = 0.8
doc.recompute()

fillet13 = body29.newObject("PartDesign::Fillet", "Fillet012")
fillet13.Base = (fillet12, edges_at(fillet12, [
    (0.3, 27, 4.5),
    (34, 0.3, 4.5),
    (34, 53.7, 4.5),
    (67.7, 39.15, 4.5),
    (67.7, 11.25, 4.5),
]))
fillet13.Radius = 0.2

doc.recompute()
